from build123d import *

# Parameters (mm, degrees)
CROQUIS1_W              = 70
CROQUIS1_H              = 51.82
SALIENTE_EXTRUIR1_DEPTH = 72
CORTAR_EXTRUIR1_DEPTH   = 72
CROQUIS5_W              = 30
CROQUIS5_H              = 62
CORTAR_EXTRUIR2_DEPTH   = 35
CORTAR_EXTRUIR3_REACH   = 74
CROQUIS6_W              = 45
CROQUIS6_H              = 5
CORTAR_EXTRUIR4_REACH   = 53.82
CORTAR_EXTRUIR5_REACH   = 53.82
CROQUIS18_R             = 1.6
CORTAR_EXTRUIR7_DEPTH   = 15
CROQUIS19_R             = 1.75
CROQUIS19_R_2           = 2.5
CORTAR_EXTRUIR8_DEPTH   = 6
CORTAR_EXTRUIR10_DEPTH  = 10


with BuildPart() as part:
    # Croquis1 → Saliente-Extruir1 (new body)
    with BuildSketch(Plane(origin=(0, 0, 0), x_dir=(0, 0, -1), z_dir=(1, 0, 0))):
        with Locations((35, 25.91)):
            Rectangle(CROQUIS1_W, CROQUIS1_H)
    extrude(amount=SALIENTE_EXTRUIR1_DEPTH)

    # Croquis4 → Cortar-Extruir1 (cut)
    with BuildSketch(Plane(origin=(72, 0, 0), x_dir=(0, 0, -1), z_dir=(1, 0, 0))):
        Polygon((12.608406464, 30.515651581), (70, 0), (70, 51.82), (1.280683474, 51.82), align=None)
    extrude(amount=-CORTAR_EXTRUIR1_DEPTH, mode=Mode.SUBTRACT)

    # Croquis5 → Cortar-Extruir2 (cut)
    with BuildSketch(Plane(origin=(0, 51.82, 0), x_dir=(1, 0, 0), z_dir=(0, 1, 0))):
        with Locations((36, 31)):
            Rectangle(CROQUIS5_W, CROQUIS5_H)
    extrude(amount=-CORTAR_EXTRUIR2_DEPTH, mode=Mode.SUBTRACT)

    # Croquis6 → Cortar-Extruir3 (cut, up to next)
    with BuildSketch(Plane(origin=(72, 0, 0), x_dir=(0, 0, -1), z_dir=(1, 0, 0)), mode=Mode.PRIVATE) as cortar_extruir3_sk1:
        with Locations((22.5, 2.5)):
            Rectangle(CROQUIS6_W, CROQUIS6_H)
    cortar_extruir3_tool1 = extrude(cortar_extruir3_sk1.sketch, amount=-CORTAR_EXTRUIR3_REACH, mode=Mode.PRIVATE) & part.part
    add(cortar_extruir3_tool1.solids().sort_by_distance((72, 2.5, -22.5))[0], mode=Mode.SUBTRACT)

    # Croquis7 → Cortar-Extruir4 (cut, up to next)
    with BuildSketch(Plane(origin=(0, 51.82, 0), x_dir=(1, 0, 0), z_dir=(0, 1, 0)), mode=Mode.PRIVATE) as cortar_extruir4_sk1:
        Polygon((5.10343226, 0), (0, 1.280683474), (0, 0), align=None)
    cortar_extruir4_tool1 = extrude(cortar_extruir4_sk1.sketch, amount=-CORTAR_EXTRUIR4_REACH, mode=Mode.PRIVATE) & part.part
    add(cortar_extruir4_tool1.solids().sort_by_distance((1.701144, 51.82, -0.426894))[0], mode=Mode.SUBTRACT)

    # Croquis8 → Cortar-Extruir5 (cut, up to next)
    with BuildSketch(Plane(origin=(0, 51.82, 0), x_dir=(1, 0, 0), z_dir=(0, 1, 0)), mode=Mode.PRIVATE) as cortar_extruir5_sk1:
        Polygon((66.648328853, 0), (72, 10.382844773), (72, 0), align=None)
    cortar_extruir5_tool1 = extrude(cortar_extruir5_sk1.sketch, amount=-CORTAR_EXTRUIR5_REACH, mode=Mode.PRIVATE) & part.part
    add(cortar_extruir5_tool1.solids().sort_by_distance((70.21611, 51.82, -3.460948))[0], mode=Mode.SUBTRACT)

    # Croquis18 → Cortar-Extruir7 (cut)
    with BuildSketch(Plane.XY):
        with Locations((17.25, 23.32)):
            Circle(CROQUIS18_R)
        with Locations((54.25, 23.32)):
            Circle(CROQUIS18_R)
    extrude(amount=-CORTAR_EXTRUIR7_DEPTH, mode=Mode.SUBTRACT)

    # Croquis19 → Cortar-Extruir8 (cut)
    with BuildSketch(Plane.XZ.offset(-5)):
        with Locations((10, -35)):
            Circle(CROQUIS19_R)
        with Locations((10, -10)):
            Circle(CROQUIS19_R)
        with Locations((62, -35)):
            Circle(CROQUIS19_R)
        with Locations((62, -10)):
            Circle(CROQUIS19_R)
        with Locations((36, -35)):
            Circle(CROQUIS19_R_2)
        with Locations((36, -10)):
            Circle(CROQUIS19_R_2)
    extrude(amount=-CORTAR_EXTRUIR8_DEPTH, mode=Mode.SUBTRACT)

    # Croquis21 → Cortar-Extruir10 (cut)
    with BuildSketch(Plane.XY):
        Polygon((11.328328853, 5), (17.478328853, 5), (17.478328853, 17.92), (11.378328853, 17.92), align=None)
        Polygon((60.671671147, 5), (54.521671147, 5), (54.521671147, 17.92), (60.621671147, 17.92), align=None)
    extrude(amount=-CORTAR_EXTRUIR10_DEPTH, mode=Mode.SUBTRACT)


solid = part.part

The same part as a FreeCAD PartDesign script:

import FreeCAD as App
import Part
import Sketcher
from FreeCAD import Vector
Q = App.Units.Quantity


def add_polygon(sketch, points):
    """Adds a closed chain of lines whose ends are joined by coincident constraints."""
    first, n = sketch.GeometryCount, len(points)
    for a, b in zip(points, points[1:] + points[:1]):
        sketch.addGeometry(Part.LineSegment(App.Vector(*a, 0), App.Vector(*b, 0)), False)
    for i in range(n):
        sketch.addConstraint(Sketcher.Constraint("Coincident", first + i, 2, first + (i + 1) % n, 1))

doc = App.newDocument("Part")
body = doc.addObject("PartDesign::Body", "Body")

# Sketch on YZ plane
sketch1 = doc.addObject("Sketcher::SketchObject", "Sketch")
body.addObject(sketch1)
sketch1.AttachmentSupport = (doc.YZ_Plane, [""])
sketch1.MapMode = "FlatFace"
add_polygon(sketch1, [(52, 0), (0, 0), (0, -70), (52, -70)])  # lines 0-3
sketch1.addConstraint(Sketcher.Constraint("Horizontal", 0))
sketch1.addConstraint(Sketcher.Constraint("Vertical", 1))
sketch1.addConstraint(Sketcher.Constraint("Horizontal", 2))
sketch1.addConstraint(Sketcher.Constraint("Vertical", 3))
sketch1.addConstraint(Sketcher.Constraint("Coincident", 0, 2, -1, 1))
sketch1.addConstraint(Sketcher.Constraint("DistanceY", 1, 2, 1, 1, 70.0))
sketch1.addConstraint(Sketcher.Constraint("DistanceX", 0, 2, 0, 1, 51.82))
pad1 = doc.addObject("PartDesign::Pad", "Pad")
body.addObject(pad1)
pad1.Profile = sketch1
pad1.Length = 72

# Sketch on YZ plane
sketch2 = doc.addObject("Sketcher::SketchObject", "Sketch001")
body.addObject(sketch2)
sketch2.AttachmentSupport = (doc.YZ_Plane, [""])
sketch2.MapMode = "FlatFace"
sketch2.AttachmentOffset = App.Placement(Vector(0, 0, 72), App.Rotation())
add_polygon(sketch2, [(31, -13), (0, -70), (52, -70), (52, -1)])  # lines 0-3
sketch2.addConstraint(Sketcher.Constraint("Horizontal", 1))
sketch2.addConstraint(Sketcher.Constraint("Vertical", 2))
sketch2.addConstraint(Sketcher.Constraint("PointOnObject", 0, 2, -2))
sketch2.addConstraint(Sketcher.Constraint("Angle", 0, Q("-118 deg")))
sketch2.addConstraint(Sketcher.Constraint("Angle", 3, Q("-152 deg")))
sketch2.addConstraint(Sketcher.Constraint("Distance", 0, 65.0))
sketch2.addConstraint(Sketcher.Constraint("DistanceY", 0, 2, -1, 1, 70.0))
sketch2.addConstraint(Sketcher.Constraint("DistanceX", 1, 1, 1, 2, 51.82))
pocket1 = doc.addObject("PartDesign::Pocket", "Pocket")
body.addObject(pocket1)
pocket1.Profile = sketch2
pocket1.Length = 72

# Sketch on XZ plane
sketch3 = doc.addObject("Sketcher::SketchObject", "Sketch002")
body.addObject(sketch3)
sketch3.AttachmentSupport = (doc.XZ_Plane, [""])
sketch3.MapMode = "FlatFace"
sketch3.AttachmentOffset = App.Placement(Vector(0, 0, -51.82), App.Rotation())
add_polygon(sketch3, [(21, -62), (21, 0), (51, 0), (51, -62)])  # lines 0-3
sketch3.addConstraint(Sketcher.Constraint("Vertical", 0))
sketch3.addConstraint(Sketcher.Constraint("Horizontal", 1))
sketch3.addConstraint(Sketcher.Constraint("Vertical", 2))
sketch3.addConstraint(Sketcher.Constraint("Horizontal", 3))
sketch3.addConstraint(Sketcher.Constraint("PointOnObject", 0, 2, -1))
sketch3.addConstraint(Sketcher.Constraint("DistanceX", 1, 1, 1, 2, 30.0))
sketch3.addConstraint(Sketcher.Constraint("DistanceY", 0, 1, 0, 2, 62.0))
sketch3.addConstraint(Sketcher.Constraint("DistanceX", -1, 1, 0, 2, 21.0))
pocket2 = doc.addObject("PartDesign::Pocket", "Pocket001")
body.addObject(pocket2)
pocket2.Profile = sketch3
pocket2.Length = 35
pocket2.Reversed = True

# Sketch on YZ plane
sketch4 = doc.addObject("Sketcher::SketchObject", "Sketch003")
body.addObject(sketch4)
sketch4.AttachmentSupport = (doc.YZ_Plane, [""])
sketch4.MapMode = "FlatFace"
sketch4.AttachmentOffset = App.Placement(Vector(0, 0, 72), App.Rotation())
add_polygon(sketch4, [(5, 0), (0, 0), (0, -45), (5, -45)])  # lines 0-3
sketch4.addConstraint(Sketcher.Constraint("Horizontal", 0))
sketch4.addConstraint(Sketcher.Constraint("Vertical", 1))
sketch4.addConstraint(Sketcher.Constraint("Horizontal", 2))
sketch4.addConstraint(Sketcher.Constraint("Vertical", 3))
sketch4.addConstraint(Sketcher.Constraint("Coincident", 0, 2, -1, 1))
sketch4.addConstraint(Sketcher.Constraint("DistanceX", 0, 2, 0, 1, 5.0))
sketch4.addConstraint(Sketcher.Constraint("DistanceY", 1, 2, 1, 1, 45.0))
pocket3 = doc.addObject("PartDesign::Pocket", "Pocket002")
body.addObject(pocket3)
pocket3.Profile = sketch4
pocket3.Type = "UpToFirst"

# Sketch on XZ plane
sketch5 = doc.addObject("Sketcher::SketchObject", "Sketch004")
body.addObject(sketch5)
sketch5.AttachmentSupport = (doc.XZ_Plane, [""])
sketch5.MapMode = "FlatFace"
sketch5.AttachmentOffset = App.Placement(Vector(0, 0, -51.82), App.Rotation())
add_polygon(sketch5, [(5.1, 0), (0, -1.3), (0, 0)])  # lines 0-2
sketch5.addConstraint(Sketcher.Constraint("Vertical", 1))
sketch5.addConstraint(Sketcher.Constraint("Horizontal", 2))
sketch5.addConstraint(Sketcher.Constraint("Coincident", 1, 2, -1, 1))
sketch5.addConstraint(Sketcher.Constraint("Distance", 0, 5.26167))
sketch5.addConstraint(Sketcher.Constraint("DistanceX", 2, 1, 2, 2, 5.103432))
pocket4 = doc.addObject("PartDesign::Pocket", "Pocket003")
body.addObject(pocket4)
pocket4.Profile = sketch5
pocket4.Type = "UpToFirst"
pocket4.Reversed = True

# Sketch on XZ plane
sketch6 = doc.addObject("Sketcher::SketchObject", "Sketch005")
body.addObject(sketch6)
sketch6.AttachmentSupport = (doc.XZ_Plane, [""])
sketch6.MapMode = "FlatFace"
sketch6.AttachmentOffset = App.Placement(Vector(0, 0, -51.82), App.Rotation())
add_polygon(sketch6, [(72, -10), (67, 0), (72, 0)])  # lines 0-2
sketch6.addConstraint(Sketcher.Constraint("Horizontal", 1))
sketch6.addConstraint(Sketcher.Constraint("Vertical", 2))
sketch6.addConstraint(Sketcher.Constraint("PointOnObject", 0, 2, -1))
sketch6.addConstraint(Sketcher.Constraint("DistanceX", -1, 1, 1, 2, 72.0))
sketch6.addConstraint(Sketcher.Constraint("DistanceX", 1, 1, 1, 2, 5.351671))
sketch6.addConstraint(Sketcher.Constraint("Distance", 0, 11.680918))
pocket5 = doc.addObject("PartDesign::Pocket", "Pocket004")
body.addObject(pocket5)
pocket5.Profile = sketch6
pocket5.Length = 46.82
pocket5.Reversed = True

# Sketch on XY plane
sketch7 = doc.addObject("Sketcher::SketchObject", "Sketch006")
body.addObject(sketch7)
sketch7.AttachmentSupport = (doc.XY_Plane, [""])
sketch7.MapMode = "FlatFace"
sketch7.addGeometry(Part.Circle(Vector(17.2, 23.3, 0), Vector(0, 0, 1), 1.6), False)
sketch7.addGeometry(Part.Circle(Vector(54.2, 23.3, 0), Vector(0, 0, 1), 1.6), False)
sketch7.addConstraint(Sketcher.Constraint("Equal", 0, 1))
sketch7.addConstraint(Sketcher.Constraint("Horizontal", 0, 3, 1, 3))
sketch7.addConstraint(Sketcher.Constraint("Diameter", 0, 3.2))
sketch7.addConstraint(Sketcher.Constraint("DistanceX", 0, 3, 1, 3, 37.0))
sketch7.addConstraint(Sketcher.Constraint("DistanceX", -1, 1, 0, 3, 17.25))
sketch7.addConstraint(Sketcher.Constraint("DistanceY", -1, 1, 0, 3, 23.32))
pocket6 = doc.addObject("PartDesign::Pocket", "Pocket005")
body.addObject(pocket6)
pocket6.Profile = sketch7
pocket6.Length = 15

# Sketch on XZ plane
sketch8 = doc.addObject("Sketcher::SketchObject", "Sketch007")
body.addObject(sketch8)
sketch8.AttachmentSupport = (doc.XZ_Plane, [""])
sketch8.MapMode = "FlatFace"
sketch8.AttachmentOffset = App.Placement(Vector(0, 0, -5), App.Rotation())
sketch8.addGeometry(Part.Circle(Vector(10, -35, 0), Vector(0, 0, 1), 1.8), False)
sketch8.addGeometry(Part.Circle(Vector(10, -10, 0), Vector(0, 0, 1), 1.8), False)
sketch8.addGeometry(Part.Circle(Vector(62, -35, 0), Vector(0, 0, 1), 1.8), False)
sketch8.addGeometry(Part.Circle(Vector(62, -10, 0), Vector(0, 0, 1), 1.8), False)
sketch8.addGeometry(Part.Circle(Vector(36, -35, 0), Vector(0, 0, 1), 2.5), False)
sketch8.addGeometry(Part.Circle(Vector(36, -10, 0), Vector(0, 0, 1), 2.5), False)
sketch8.addConstraint(Sketcher.Constraint("Equal", 0, 1))
sketch8.addConstraint(Sketcher.Constraint("Equal", 1, 2))
sketch8.addConstraint(Sketcher.Constraint("Equal", 2, 3))
sketch8.addConstraint(Sketcher.Constraint("Equal", 4, 5))
sketch8.addConstraint(Sketcher.Constraint("Horizontal", 0, 3, 2, 3))
sketch8.addConstraint(Sketcher.Constraint("Horizontal", 1, 3, 3, 3))
sketch8.addConstraint(Sketcher.Constraint("Horizontal", 2, 3, 4, 3))
sketch8.addConstraint(Sketcher.Constraint("Horizontal", 3, 3, 5, 3))
sketch8.addConstraint(Sketcher.Constraint("Vertical", 0, 3, 1, 3))
sketch8.addConstraint(Sketcher.Constraint("Vertical", 2, 3, 3, 3))
sketch8.addConstraint(Sketcher.Constraint("Vertical", 4, 3, 5, 3))
sketch8.addConstraint(Sketcher.Constraint("Diameter", 4, 5.0))
sketch8.addConstraint(Sketcher.Constraint("Diameter", 0, 3.5))
sketch8.addConstraint(Sketcher.Constraint("DistanceX", -1, 1, 0, 3, 10.0))
sketch8.addConstraint(Sketcher.Constraint("DistanceY", 0, 3, -1, 1, 35.0))
sketch8.addConstraint(Sketcher.Constraint("DistanceY", 1, 3, -1, 1, 10.0))
sketch8.addConstraint(Sketcher.Constraint("DistanceX", -1, 1, 2, 3, 62.0))
sketch8.addConstraint(Sketcher.Constraint("DistanceX", -1, 1, 4, 3, 36.0))
pocket7 = doc.addObject("PartDesign::Pocket", "Pocket006")
body.addObject(pocket7)
pocket7.Profile = sketch8
pocket7.Length = 6

# Sketch on XY plane
sketch9 = doc.addObject("Sketcher::SketchObject", "Sketch008")
body.addObject(sketch9)
sketch9.AttachmentSupport = (doc.XY_Plane, [""])
sketch9.MapMode = "FlatFace"
add_polygon(sketch9, [(11, 5), (17, 5), (17, 18), (11, 18)])  # lines 0-3
add_polygon(sketch9, [(55, 5), (61, 5), (61, 18), (55, 18)])  # lines 4-7
sketch9.addConstraint(Sketcher.Constraint("Horizontal", 0))
sketch9.addConstraint(Sketcher.Constraint("Vertical", 1))
sketch9.addConstraint(Sketcher.Constraint("Horizontal", 2))
sketch9.addConstraint(Sketcher.Constraint("Horizontal", 4))
sketch9.addConstraint(Sketcher.Constraint("Horizontal", 6))
sketch9.addConstraint(Sketcher.Constraint("Vertical", 7))
sketch9.addConstraint(Sketcher.Constraint("Horizontal", 3, 2, 4, 2))
sketch9.addConstraint(Sketcher.Constraint("Horizontal", 2, 2, 5, 2))
sketch9.addConstraint(Sketcher.Constraint("Equal", 0, 4))
sketch9.addConstraint(Sketcher.Constraint("Equal", 2, 6))
sketch9.addConstraint(Sketcher.Constraint("DistanceX", 2, 2, 2, 1, 6.1))
sketch9.addConstraint(Sketcher.Constraint("DistanceY", -1, 1, 0, 2, 5.0))
sketch9.addConstraint(Sketcher.Constraint("DistanceX", 0, 1, 0, 2, 6.15))
sketch9.addConstraint(Sketcher.Constraint("DistanceY", 1, 1, 1, 2, 12.92))
sketch9.addConstraint(Sketcher.Constraint("DistanceX", -1, 1, 0, 2, 17.478329))
sketch9.addConstraint(Sketcher.Constraint("DistanceX", -1, 1, 4, 2, 60.671671))
pocket8 = doc.addObject("PartDesign::Pocket", "Pocket007")
body.addObject(pocket8)
pocket8.Profile = sketch9
pocket8.Length = 10

doc.recompute()
